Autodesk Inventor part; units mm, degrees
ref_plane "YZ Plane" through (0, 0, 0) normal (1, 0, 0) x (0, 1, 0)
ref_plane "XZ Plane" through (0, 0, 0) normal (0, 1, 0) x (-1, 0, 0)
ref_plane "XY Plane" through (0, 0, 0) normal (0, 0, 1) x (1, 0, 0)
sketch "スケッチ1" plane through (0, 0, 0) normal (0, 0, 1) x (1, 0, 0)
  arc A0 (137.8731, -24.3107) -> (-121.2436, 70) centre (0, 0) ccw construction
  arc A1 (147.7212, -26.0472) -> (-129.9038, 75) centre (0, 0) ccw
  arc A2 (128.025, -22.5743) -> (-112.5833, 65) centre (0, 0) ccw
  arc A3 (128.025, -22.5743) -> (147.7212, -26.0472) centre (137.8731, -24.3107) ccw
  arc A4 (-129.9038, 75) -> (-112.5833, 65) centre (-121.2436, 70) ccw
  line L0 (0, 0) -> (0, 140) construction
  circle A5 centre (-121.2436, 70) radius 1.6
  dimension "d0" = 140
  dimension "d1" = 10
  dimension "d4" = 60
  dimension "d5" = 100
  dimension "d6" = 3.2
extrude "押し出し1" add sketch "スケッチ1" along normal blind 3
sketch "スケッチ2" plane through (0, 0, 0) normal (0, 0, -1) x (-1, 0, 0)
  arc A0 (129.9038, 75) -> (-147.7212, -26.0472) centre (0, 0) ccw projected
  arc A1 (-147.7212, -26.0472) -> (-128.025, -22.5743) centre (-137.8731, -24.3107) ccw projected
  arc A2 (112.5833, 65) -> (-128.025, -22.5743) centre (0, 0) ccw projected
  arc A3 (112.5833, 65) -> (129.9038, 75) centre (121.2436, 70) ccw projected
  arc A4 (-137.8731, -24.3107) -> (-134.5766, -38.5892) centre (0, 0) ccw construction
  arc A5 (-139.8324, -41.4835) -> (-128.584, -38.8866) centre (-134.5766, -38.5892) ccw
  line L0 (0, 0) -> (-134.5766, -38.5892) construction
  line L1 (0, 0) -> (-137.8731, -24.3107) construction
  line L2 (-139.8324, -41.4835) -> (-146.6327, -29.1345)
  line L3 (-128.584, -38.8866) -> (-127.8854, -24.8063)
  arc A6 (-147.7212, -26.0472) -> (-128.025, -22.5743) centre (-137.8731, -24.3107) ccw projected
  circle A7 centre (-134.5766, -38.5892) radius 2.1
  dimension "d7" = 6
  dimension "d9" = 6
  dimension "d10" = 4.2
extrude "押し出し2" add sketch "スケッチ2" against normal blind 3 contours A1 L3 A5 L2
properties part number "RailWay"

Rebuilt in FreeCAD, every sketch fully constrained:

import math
import FreeCAD as App
import Part
import Sketcher
Q = App.Units.Quantity

doc = App.newDocument("Part")
body = doc.addObject("PartDesign::Body", "Body")

sketch1 = body.newObject("Sketcher::SketchObject", "Sketch")
sketch1.AttachmentSupport = (doc.getObject("XY_Plane"), [""])
sketch1.MapMode = "FlatFace"
sketch1.addGeometry([
    Part.ArcOfCircle(Part.Circle(App.Vector(137.9, -24.3, 0), App.Vector(0, 0, 1), 10), math.radians(170), math.radians(350)),
    Part.ArcOfCircle(Part.Circle(App.Vector(0, 0, 0), App.Vector(0, 0, 1), 150), math.radians(-10), math.radians(150)),
    Part.ArcOfCircle(Part.Circle(App.Vector(-121.2, 70, 0), App.Vector(0, 0, 1), 10), math.radians(150), math.radians(330)),
    Part.ArcOfCircle(Part.Circle(App.Vector(0, 0, 0), App.Vector(0, 0, 1), 130), math.radians(-10), math.radians(150)),
    Part.Circle(App.Vector(-121.2, 70, 0), App.Vector(0, 0, 1), 1.6),
], False)
sketch1.addConstraint([
    Sketcher.Constraint("Tangent", 0, 2, 1, 1),
    Sketcher.Constraint("Tangent", 1, 2, 2, 1),
    Sketcher.Constraint("Tangent", 2, 2, 3, 2),
    Sketcher.Constraint("Tangent", 3, 1, 0, 1),
    Sketcher.Constraint("Coincident", 1, 3, -1, 1),
    Sketcher.Constraint("Coincident", 3, 3, -1, 1),
    Sketcher.Constraint("Coincident", 4, 3, 2, 3),
    Sketcher.Constraint("Radius", 0, 10.0),
    Sketcher.Constraint("Diameter", 4, 3.2),
    Sketcher.Constraint("Radius", 1, 150.0),
    Sketcher.Constraint("DistanceY", -1, 1, 2, 3, 70.0),
    Sketcher.Constraint("DistanceX", -1, 1, 0, 3, 137.873),
])
pad1 = body.newObject("PartDesign::Pad", "Pad")
pad1.Profile = sketch1
pad1.Length = 3

sketch2 = body.newObject("Sketcher::SketchObject", "Sketch001")
sketch2.AttachmentSupport = (doc.getObject("XY_Plane"), [""])
sketch2.MapMode = "FlatFace"
sketch2.addGeometry([
    Part.ArcOfCircle(Part.Circle(App.Vector(137.9, -24.3, 0), App.Vector(0, 0, 1), 10), math.radians(-177), math.radians(-29)),
    Part.LineSegment(App.Vector(146.6, -29.1, 0), App.Vector(139.8, -41.5, 0)),
    Part.ArcOfCircle(Part.Circle(App.Vector(134.6, -38.6, 0), App.Vector(0, 0, 1), 6), math.radians(-177), math.radians(-29)),
    Part.LineSegment(App.Vector(128.6, -38.9, 0), App.Vector(127.9, -24.8, 0)),
    Part.Circle(App.Vector(134.6, -38.6, 0), App.Vector(0, 0, 1), 2.1),
], False)
sketch2.addConstraint([
    Sketcher.Constraint("Tangent", 0, 2, 1, 1),
    Sketcher.Constraint("Tangent", 1, 2, 2, 2),
    Sketcher.Constraint("Tangent", 2, 1, 3, 1),
    Sketcher.Constraint("Tangent", 3, 2, 0, 1),
    Sketcher.Constraint("Coincident", 4, 3, 2, 3),
    Sketcher.Constraint("Radius", 2, 6.0),
    Sketcher.Constraint("Diameter", 4, 4.2),
    Sketcher.Constraint("Radius", 0, 10.0),
    Sketcher.Constraint("Angle", 1, Q("-118.8405 deg")),
    Sketcher.Constraint("Angle", 3, Q("92.8404 deg")),
    Sketcher.Constraint("DistanceX", -1, 1, 0, 3, 137.873),
    Sketcher.Constraint("DistanceY", 0, 3, -1, 1, 24.3107),
])
pad2 = body.newObject("PartDesign::Pad", "Pad001")
pad2.Profile = sketch2
pad2.Length = 3

doc.recompute()
